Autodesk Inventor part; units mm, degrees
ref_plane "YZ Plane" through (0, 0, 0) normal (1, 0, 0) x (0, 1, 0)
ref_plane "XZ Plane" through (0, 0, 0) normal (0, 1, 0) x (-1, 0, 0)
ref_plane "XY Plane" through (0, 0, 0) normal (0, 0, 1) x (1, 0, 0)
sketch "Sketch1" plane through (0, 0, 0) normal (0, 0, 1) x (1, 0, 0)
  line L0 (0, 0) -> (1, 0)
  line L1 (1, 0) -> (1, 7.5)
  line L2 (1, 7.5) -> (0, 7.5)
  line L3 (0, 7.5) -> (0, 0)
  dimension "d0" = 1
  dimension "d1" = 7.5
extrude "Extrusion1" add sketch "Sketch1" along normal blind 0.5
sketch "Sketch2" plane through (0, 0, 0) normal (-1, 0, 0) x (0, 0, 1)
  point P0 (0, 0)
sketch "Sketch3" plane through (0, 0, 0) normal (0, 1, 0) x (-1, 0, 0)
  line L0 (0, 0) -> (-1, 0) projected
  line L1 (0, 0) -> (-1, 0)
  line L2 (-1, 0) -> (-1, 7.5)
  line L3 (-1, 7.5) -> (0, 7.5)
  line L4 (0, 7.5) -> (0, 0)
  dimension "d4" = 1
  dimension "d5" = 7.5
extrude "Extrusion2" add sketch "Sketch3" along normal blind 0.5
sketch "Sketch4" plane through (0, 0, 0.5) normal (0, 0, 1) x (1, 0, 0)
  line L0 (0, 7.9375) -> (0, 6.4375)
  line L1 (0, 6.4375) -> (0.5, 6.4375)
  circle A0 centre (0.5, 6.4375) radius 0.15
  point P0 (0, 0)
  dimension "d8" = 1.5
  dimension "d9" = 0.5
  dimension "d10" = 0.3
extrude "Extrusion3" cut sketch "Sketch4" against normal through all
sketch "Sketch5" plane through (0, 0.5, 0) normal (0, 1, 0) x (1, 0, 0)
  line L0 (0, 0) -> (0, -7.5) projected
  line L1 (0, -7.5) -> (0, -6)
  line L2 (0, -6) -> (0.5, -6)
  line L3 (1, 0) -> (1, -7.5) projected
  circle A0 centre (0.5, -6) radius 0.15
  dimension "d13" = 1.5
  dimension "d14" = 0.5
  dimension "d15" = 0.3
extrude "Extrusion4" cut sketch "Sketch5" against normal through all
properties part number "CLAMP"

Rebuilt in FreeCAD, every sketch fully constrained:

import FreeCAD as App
import Part
import Sketcher
Q = App.Units.Quantity


def add_polygon(sketch, points):
    """Adds a closed chain of lines whose ends are joined by coincident constraints."""
    first, n = sketch.GeometryCount, len(points)
    for a, b in zip(points, points[1:] + points[:1]):
        sketch.addGeometry(Part.LineSegment(App.Vector(*a, 0), App.Vector(*b, 0)), False)
    for i in range(n):
        sketch.addConstraint(Sketcher.Constraint("Coincident", first + i, 2, first + (i + 1) % n, 1))

doc = App.newDocument("Part")
body = doc.addObject("PartDesign::Body", "Body")

sketch1 = body.newObject("Sketcher::SketchObject", "Sketch")
sketch1.AttachmentSupport = (doc.getObject("XY_Plane"), [""])
sketch1.MapMode = "FlatFace"
add_polygon(sketch1, [(0, 7.5), (0, 0), (1, 0), (1, 7.5)])
sketch1.addConstraint(Sketcher.Constraint("Vertical", 0))
sketch1.addConstraint(Sketcher.Constraint("Horizontal", 1))
sketch1.addConstraint(Sketcher.Constraint("Vertical", 2))
sketch1.addConstraint(Sketcher.Constraint("Horizontal", 3))
sketch1.addConstraint(Sketcher.Constraint("Coincident", 0, 2, -1, 1))
sketch1.addConstraint(Sketcher.Constraint("DistanceX", 1, 1, 1, 2, Q("1 mm")))
sketch1.addConstraint(Sketcher.Constraint("DistanceY", 0, 2, 0, 1, Q("7.5 mm")))
pad1 = body.newObject("PartDesign::Pad", "Pad")
pad1.Profile = sketch1
pad1.Length = 0.5

sketch2 = body.newObject("Sketcher::SketchObject", "Sketch001")
sketch2.AttachmentSupport = (doc.getObject("XZ_Plane"), [""])
sketch2.MapMode = "FlatFace"
add_polygon(sketch2, [(1, 0), (0, 0), (0, 7.5), (1, 7.5)])
sketch2.addConstraint(Sketcher.Constraint("Horizontal", 0))
sketch2.addConstraint(Sketcher.Constraint("Vertical", 1))
sketch2.addConstraint(Sketcher.Constraint("Horizontal", 2))
sketch2.addConstraint(Sketcher.Constraint("Vertical", 3))
sketch2.addConstraint(Sketcher.Constraint("Coincident", 0, 2, -1, 1))
sketch2.addConstraint(Sketcher.Constraint("DistanceX", 0, 2, 0, 1, Q("1 mm")))
sketch2.addConstraint(Sketcher.Constraint("DistanceY", 1, 1, 1, 2, Q("7.5 mm")))
pad2 = body.newObject("PartDesign::Pad", "Pad001")
pad2.Profile = sketch2
pad2.Length = 0.5
pad2.Reversed = True

sketch3 = body.newObject("Sketcher::SketchObject", "Sketch002")
sketch3.AttachmentSupport = (doc.getObject("XY_Plane"), [""])
sketch3.MapMode = "FlatFace"
sketch3.AttachmentOffset = App.Placement(App.Vector(0, 0, 0.5), App.Rotation())
sketch3.addGeometry(Part.Circle(App.Vector(0.5, 6.44, 0), App.Vector(0, 0, 1), 0.15), False)
sketch3.addConstraint(Sketcher.Constraint("Diameter", 0, Q("0.3 mm")))
sketch3.addConstraint(Sketcher.Constraint("DistanceX", -1, 1, 0, 3, Q("0.5 mm")))
sketch3.addConstraint(Sketcher.Constraint("DistanceY", -1, 1, 0, 3, Q("6.4375 mm")))
pocket1 = body.newObject("PartDesign::Pocket", "Pocket")
pocket1.Profile = sketch3
pocket1.Type = "ThroughAll"

sketch4 = body.newObject("Sketcher::SketchObject", "Sketch003")
sketch4.AttachmentSupport = (doc.getObject("XZ_Plane"), [""])
sketch4.MapMode = "FlatFace"
sketch4.AttachmentOffset = App.Placement(App.Vector(0, 0, -0.5), App.Rotation())
sketch4.addGeometry(Part.Circle(App.Vector(0.5, 6, 0), App.Vector(0, 0, 1), 0.15), False)
sketch4.addConstraint(Sketcher.Constraint("Diameter", 0, Q("0.3 mm")))
sketch4.addConstraint(Sketcher.Constraint("DistanceX", -1, 1, 0, 3, Q("0.5 mm")))
sketch4.addConstraint(Sketcher.Constraint("DistanceY", -1, 1, 0, 3, Q("6 mm")))
pocket2 = body.newObject("PartDesign::Pocket", "Pocket001")
pocket2.Profile = sketch4
pocket2.Type = "ThroughAll"
pocket2.Reversed = True

doc.recompute()
